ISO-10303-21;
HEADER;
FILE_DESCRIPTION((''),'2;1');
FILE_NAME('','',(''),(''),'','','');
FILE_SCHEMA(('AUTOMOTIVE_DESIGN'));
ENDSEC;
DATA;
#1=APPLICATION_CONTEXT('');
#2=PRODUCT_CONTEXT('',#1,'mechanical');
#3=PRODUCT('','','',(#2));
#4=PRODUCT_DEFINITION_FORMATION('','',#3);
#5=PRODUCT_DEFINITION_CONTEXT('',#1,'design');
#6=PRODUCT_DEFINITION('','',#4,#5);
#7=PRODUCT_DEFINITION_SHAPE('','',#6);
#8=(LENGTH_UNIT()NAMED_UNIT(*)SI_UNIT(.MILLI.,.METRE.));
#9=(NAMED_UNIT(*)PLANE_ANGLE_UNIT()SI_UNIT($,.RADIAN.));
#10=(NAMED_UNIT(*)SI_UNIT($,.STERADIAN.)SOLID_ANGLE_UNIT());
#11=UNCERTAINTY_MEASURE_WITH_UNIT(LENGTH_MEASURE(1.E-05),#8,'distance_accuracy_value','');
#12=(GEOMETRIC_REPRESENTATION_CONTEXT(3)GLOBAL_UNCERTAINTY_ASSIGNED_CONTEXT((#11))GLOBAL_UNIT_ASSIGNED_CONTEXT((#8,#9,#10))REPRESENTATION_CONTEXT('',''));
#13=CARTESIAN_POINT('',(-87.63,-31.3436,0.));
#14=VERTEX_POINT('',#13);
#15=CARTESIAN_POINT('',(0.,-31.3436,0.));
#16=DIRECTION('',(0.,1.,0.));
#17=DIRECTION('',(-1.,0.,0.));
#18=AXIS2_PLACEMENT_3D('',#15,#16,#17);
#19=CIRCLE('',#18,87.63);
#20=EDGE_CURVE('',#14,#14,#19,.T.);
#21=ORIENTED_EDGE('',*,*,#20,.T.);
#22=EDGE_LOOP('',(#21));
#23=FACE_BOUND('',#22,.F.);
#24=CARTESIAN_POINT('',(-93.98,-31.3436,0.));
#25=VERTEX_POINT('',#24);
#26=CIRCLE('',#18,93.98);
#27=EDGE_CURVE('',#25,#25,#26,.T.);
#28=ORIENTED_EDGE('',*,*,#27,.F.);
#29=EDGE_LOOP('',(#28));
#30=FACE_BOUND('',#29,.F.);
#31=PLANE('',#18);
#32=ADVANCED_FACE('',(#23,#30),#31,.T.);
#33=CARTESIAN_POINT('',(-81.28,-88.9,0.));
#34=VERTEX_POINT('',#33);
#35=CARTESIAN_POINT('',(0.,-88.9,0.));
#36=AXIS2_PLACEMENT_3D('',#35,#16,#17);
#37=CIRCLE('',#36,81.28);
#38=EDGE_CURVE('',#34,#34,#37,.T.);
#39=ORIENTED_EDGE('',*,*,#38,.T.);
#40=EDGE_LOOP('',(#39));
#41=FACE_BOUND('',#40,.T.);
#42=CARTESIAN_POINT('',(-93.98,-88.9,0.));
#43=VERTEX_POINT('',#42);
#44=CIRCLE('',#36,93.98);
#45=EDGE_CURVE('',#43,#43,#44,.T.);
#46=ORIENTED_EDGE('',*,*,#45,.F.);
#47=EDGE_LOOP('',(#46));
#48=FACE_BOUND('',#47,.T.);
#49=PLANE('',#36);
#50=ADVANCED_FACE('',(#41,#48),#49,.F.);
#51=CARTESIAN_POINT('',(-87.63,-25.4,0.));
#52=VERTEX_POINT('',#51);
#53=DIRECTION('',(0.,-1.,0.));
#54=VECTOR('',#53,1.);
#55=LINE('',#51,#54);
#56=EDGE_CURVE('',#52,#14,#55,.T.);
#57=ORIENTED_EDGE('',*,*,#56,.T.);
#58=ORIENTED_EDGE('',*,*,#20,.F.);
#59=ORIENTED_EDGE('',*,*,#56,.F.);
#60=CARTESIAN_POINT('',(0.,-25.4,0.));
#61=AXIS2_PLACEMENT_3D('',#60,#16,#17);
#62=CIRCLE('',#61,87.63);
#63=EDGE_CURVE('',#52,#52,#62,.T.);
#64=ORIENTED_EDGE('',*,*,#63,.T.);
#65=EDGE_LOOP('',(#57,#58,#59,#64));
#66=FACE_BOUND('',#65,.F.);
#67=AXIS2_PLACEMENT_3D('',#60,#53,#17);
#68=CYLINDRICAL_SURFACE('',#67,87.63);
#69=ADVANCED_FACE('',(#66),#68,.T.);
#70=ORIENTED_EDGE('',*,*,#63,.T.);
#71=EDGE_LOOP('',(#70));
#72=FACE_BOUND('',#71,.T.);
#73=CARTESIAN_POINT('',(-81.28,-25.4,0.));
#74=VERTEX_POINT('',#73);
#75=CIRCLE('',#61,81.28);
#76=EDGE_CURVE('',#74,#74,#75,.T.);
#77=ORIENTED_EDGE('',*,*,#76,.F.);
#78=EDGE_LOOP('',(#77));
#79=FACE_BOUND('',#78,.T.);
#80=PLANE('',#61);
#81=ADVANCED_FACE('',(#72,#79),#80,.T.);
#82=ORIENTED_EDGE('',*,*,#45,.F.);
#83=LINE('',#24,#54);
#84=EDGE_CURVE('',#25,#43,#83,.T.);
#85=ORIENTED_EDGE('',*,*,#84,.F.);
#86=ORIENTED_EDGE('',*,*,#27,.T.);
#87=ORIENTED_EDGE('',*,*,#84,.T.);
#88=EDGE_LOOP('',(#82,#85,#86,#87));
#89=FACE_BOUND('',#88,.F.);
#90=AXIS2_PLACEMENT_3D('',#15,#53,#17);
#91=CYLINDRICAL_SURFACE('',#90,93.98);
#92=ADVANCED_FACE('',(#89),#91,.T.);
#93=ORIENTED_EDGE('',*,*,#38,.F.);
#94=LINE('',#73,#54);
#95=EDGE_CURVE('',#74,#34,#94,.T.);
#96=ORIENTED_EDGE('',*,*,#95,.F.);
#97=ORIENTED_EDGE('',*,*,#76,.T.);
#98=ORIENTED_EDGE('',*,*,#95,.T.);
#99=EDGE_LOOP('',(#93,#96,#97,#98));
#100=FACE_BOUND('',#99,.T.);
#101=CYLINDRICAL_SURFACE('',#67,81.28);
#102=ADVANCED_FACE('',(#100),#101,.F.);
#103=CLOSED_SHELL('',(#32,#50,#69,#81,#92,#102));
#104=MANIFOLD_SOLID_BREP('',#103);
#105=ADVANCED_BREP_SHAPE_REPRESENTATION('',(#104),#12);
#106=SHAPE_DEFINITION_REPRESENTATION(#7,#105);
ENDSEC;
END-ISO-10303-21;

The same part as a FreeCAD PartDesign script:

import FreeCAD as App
import Part
import Sketcher
from FreeCAD import Vector
Q = App.Units.Quantity


def add_polygon(sketch, points):
    """Adds a closed chain of lines whose ends are joined by coincident constraints."""
    first, n = sketch.GeometryCount, len(points)
    for a, b in zip(points, points[1:] + points[:1]):
        sketch.addGeometry(Part.LineSegment(App.Vector(*a, 0), App.Vector(*b, 0)), False)
    for i in range(n):
        sketch.addConstraint(Sketcher.Constraint("Coincident", first + i, 2, first + (i + 1) % n, 1))

doc = App.newDocument("Part")
body = doc.addObject("PartDesign::Body", "Body")

# Sketch on XY plane
sketch1 = body.newObject("Sketcher::SketchObject", "Sketch")
sketch1.AttachmentSupport = (doc.getObject("XY_Plane"), [""])
sketch1.MapMode = "FlatFace"
add_polygon(sketch1, [(-81.28, -25.4), (-87.63, -25.4), (-87.63, -31.3436), (-93.98, -31.3436), (-93.98, -88.9), (-81.28, -88.9)])  # lines 0-5
sketch1.addConstraint([
    Sketcher.Constraint("Horizontal", 0),
    Sketcher.Constraint("Vertical", 1),
    Sketcher.Constraint("Horizontal", 2),
    Sketcher.Constraint("Vertical", 3),
    Sketcher.Constraint("Horizontal", 4),
    Sketcher.Constraint("Vertical", 5),
    Sketcher.Constraint("Equal", 0, 2),
    Sketcher.Constraint("DistanceX", 4, 1, 4, 2, Q("0.5 in")),
    Sketcher.Constraint("DistanceY", 5, 1, 5, 2, Q("2.5 in")),
    Sketcher.Constraint("DistanceY", 0, 2, -1, 1, Q("1 in")),
    Sketcher.Constraint("DistanceX", 2, 2, -1, 1, Q("3.7 in")),
    Sketcher.Constraint("DistanceY", 1, 2, 1, 1, Q("0.234 in")),
])
revolution = body.newObject("PartDesign::Revolution", "Revolution")
revolution.Profile = sketch1
revolution.ReferenceAxis = (sketch1, ["V_Axis"])
revolution.Angle = 360

doc.recompute()
